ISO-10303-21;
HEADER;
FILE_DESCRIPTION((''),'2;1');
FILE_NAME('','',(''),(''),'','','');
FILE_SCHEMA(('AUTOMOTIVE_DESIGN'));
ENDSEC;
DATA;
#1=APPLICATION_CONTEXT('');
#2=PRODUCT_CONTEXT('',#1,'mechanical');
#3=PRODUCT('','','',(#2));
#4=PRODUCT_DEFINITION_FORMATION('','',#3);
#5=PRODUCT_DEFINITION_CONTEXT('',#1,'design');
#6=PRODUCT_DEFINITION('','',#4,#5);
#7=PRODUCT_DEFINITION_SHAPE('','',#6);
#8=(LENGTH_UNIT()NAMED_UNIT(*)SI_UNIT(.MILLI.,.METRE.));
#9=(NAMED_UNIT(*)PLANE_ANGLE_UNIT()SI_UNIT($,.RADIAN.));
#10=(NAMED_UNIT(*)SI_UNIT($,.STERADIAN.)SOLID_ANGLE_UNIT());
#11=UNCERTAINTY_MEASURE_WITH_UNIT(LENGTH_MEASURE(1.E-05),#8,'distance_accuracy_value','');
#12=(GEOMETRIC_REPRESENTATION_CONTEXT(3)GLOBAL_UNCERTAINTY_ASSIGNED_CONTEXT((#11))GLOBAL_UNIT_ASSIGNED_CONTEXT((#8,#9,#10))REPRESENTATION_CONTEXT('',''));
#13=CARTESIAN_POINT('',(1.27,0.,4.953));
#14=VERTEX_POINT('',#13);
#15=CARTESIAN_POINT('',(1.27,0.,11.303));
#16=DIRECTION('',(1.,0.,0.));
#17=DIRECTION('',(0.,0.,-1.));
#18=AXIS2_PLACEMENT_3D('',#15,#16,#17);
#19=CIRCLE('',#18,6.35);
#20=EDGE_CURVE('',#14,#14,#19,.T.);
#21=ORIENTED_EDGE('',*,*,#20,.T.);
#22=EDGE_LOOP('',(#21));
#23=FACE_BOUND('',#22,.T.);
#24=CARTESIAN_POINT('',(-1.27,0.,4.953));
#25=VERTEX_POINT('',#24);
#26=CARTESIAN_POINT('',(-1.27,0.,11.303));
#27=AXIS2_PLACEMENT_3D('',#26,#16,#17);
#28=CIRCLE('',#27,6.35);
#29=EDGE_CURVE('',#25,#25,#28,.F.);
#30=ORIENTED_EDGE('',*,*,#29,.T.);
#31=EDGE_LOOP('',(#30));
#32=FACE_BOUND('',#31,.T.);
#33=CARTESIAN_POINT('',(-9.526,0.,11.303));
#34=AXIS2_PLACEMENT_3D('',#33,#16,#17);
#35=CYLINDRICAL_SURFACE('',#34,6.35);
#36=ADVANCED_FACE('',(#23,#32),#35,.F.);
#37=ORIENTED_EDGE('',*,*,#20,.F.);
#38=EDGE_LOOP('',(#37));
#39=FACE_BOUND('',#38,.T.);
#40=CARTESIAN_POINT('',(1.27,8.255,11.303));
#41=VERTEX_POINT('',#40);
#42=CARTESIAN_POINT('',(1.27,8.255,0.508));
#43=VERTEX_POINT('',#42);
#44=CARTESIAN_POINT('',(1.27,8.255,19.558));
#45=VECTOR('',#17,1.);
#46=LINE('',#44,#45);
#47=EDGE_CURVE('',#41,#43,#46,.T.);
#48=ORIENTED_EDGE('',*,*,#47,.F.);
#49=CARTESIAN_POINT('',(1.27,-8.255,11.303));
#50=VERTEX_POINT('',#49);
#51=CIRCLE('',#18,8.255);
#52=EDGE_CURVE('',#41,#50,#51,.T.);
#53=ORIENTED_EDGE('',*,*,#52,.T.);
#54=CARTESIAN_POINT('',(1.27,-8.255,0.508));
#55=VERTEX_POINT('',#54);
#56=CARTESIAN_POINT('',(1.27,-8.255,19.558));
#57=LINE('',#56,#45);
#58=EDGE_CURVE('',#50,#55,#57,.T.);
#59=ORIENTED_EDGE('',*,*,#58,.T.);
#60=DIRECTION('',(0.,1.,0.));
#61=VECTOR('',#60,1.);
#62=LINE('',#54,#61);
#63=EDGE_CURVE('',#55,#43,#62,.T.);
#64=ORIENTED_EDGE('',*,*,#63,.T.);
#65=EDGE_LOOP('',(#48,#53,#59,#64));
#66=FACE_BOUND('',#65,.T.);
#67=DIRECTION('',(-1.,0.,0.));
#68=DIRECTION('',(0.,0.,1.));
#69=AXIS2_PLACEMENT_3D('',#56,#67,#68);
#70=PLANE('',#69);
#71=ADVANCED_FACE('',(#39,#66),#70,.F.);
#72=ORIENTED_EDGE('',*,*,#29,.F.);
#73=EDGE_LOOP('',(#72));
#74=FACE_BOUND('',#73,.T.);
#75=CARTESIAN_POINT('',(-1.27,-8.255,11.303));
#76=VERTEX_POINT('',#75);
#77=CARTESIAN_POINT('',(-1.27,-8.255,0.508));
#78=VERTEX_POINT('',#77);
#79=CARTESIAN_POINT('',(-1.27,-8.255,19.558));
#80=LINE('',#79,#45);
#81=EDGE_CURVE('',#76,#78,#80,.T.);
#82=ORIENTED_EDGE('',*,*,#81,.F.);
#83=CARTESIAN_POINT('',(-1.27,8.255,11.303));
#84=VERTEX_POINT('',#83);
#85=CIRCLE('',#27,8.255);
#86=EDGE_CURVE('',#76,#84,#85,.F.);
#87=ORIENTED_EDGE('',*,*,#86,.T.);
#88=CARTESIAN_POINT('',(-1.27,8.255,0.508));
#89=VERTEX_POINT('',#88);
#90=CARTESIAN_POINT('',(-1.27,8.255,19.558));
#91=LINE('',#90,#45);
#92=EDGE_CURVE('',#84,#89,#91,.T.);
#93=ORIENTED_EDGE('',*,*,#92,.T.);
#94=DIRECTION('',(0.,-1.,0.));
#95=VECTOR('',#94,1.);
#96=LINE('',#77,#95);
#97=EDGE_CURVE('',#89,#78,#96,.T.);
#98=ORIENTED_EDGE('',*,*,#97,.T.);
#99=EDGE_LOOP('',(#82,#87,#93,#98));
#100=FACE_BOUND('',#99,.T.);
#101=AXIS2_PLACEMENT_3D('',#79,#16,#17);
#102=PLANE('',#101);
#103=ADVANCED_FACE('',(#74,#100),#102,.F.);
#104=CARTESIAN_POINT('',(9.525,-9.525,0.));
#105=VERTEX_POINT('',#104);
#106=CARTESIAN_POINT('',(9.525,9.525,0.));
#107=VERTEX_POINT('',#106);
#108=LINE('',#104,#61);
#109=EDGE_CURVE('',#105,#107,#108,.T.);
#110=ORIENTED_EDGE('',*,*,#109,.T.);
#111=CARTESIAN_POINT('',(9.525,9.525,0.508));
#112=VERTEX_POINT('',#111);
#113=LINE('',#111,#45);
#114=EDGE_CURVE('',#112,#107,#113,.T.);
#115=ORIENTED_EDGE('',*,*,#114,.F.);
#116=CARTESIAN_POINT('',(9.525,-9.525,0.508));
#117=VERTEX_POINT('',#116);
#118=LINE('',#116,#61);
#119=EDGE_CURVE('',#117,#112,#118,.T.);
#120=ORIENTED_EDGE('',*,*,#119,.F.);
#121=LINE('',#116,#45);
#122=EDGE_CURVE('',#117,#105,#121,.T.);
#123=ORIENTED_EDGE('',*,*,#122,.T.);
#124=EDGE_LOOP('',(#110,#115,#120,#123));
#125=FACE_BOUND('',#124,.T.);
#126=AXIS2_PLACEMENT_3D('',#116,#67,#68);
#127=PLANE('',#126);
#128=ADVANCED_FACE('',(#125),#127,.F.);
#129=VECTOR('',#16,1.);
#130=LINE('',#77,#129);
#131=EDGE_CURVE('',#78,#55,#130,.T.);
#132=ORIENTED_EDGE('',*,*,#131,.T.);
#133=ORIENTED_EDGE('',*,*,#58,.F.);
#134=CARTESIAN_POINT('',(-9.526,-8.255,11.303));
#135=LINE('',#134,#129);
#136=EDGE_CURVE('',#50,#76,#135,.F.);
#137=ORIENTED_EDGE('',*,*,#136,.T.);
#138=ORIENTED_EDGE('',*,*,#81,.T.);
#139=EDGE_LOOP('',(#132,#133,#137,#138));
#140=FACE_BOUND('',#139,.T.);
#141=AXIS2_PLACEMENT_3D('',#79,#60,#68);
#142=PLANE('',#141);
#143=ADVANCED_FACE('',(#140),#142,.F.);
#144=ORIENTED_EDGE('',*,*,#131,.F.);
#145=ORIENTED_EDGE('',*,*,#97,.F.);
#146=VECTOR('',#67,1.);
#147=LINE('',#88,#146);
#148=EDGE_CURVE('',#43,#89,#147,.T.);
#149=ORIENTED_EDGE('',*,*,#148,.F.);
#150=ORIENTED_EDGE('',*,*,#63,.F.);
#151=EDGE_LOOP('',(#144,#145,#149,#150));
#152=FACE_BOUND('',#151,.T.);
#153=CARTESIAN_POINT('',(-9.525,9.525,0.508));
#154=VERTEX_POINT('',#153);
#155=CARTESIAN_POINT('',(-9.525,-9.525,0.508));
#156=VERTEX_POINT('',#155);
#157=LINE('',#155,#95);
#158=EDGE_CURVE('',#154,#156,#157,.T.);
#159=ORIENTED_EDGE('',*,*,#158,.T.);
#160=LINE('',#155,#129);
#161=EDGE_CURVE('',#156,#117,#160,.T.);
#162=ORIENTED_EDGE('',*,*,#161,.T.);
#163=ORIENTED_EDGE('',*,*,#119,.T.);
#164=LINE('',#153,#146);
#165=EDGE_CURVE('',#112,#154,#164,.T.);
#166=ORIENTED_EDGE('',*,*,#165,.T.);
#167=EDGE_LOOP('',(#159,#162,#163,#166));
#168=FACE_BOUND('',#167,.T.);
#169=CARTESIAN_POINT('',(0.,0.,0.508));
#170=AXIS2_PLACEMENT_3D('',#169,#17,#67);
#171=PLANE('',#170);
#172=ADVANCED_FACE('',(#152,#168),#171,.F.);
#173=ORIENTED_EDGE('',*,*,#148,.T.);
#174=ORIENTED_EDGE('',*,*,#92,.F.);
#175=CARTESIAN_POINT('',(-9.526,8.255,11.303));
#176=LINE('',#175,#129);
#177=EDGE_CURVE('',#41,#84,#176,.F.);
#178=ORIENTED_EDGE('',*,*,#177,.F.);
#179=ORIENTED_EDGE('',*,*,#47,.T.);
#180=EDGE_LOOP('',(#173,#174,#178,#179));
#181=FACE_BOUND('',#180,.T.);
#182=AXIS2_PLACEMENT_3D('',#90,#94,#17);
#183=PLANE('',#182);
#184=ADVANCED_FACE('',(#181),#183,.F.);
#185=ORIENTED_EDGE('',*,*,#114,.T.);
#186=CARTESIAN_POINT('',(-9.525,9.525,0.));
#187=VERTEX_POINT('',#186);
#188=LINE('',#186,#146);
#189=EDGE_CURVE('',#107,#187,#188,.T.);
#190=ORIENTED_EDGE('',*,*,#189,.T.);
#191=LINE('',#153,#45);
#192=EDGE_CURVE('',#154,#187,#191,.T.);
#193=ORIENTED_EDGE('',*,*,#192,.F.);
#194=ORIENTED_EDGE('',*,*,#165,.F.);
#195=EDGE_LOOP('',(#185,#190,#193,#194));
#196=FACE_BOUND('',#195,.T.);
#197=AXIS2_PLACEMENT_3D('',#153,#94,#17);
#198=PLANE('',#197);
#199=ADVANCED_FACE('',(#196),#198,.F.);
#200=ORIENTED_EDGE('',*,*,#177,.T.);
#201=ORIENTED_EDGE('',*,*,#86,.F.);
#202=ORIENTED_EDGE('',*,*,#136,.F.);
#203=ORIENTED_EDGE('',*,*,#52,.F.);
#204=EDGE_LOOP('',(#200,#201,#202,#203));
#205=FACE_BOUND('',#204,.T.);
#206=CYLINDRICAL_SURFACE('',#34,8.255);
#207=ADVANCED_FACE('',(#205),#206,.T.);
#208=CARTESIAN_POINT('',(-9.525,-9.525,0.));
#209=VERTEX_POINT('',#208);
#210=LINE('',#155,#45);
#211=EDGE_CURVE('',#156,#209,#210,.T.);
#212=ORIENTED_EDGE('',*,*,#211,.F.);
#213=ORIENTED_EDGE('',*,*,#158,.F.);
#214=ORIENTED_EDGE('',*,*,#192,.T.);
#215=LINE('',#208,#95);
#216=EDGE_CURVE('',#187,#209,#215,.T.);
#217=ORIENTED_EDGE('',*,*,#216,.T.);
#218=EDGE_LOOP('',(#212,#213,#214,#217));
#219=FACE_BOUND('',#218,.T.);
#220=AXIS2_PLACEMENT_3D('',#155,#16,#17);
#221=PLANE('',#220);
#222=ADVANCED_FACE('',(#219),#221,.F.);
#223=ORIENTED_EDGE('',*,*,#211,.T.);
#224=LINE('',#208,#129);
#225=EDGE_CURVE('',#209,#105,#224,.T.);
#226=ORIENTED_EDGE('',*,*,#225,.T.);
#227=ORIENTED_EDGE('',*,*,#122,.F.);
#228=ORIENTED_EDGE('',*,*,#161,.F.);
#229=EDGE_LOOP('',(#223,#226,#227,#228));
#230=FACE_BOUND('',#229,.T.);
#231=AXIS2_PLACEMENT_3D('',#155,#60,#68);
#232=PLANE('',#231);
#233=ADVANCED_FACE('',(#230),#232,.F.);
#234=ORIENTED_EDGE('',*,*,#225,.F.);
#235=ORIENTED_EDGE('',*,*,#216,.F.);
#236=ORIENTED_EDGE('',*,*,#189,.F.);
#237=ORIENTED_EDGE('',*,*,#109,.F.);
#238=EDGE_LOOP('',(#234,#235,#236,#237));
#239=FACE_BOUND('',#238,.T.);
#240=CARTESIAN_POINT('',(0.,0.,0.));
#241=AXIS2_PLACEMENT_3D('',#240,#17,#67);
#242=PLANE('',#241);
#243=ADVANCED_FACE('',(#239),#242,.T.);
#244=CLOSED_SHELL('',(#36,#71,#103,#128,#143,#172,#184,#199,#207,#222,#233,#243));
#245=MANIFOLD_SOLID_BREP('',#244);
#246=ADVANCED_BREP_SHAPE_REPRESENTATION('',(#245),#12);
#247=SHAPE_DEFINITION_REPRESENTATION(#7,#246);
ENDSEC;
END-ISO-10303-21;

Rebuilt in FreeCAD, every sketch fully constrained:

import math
import FreeCAD as App
import Part
import Sketcher

V = App.Vector
Q = App.Units.Quantity


def add_polygon(sketch, points):
    """Adds a closed chain of lines whose ends are joined by coincident constraints."""
    first, n = sketch.GeometryCount, len(points)
    for a, b in zip(points, points[1:] + points[:1]):
        sketch.addGeometry(Part.LineSegment(App.Vector(*a, 0), App.Vector(*b, 0)), False)
    for i in range(n):
        sketch.addConstraint(Sketcher.Constraint("Coincident", first + i, 2, first + (i + 1) % n, 1))

doc = App.newDocument("Part")
body = doc.addObject("PartDesign::Body", "Body")

# Sketch on XY plane
sketch1 = body.newObject("Sketcher::SketchObject", "Sketch")
sketch1.AttachmentSupport = (doc.getObject("XY_Plane"), [""])
sketch1.MapMode = "FlatFace"
add_polygon(sketch1, [(-10, 10), (-10, -10), (10, -10), (10, 10)])  # lines 0-3
sketch1.addConstraint([
    Sketcher.Constraint("Vertical", 0),
    Sketcher.Constraint("Horizontal", 1),
    Sketcher.Constraint("Vertical", 2),
    Sketcher.Constraint("Horizontal", 3),
    Sketcher.Constraint("Symmetric", 0, 2, 2, 2, -1, 1),
    Sketcher.Constraint("Equal", 3, 0),
    Sketcher.Constraint("DistanceX", 1, 1, 1, 2, Q("0.75 in")),
])
pad1 = body.newObject("PartDesign::Pad", "Pad")
pad1.Profile = sketch1
pad1.Length = Q("0.02 in")

# Sketch on XY plane
sketch2 = body.newObject("Sketcher::SketchObject", "Sketch001")
sketch2.AttachmentSupport = (doc.getObject("XY_Plane"), [""])
sketch2.MapMode = "FlatFace"
sketch2.AttachmentOffset = App.Placement(V(0, 0, 0.02 * 25.4), App.Rotation())
add_polygon(sketch2, [(-1.3, 8.3), (-1.3, -8.3), (1.3, -8.3), (1.3, 8.3)])  # lines 0-3
sketch2.addConstraint([
    Sketcher.Constraint("Vertical", 0),
    Sketcher.Constraint("Horizontal", 1),
    Sketcher.Constraint("Vertical", 2),
    Sketcher.Constraint("Horizontal", 3),
    Sketcher.Constraint("Symmetric", 0, 2, 2, 2, -1, 1),
    Sketcher.Constraint("DistanceX", 1, 1, 1, 2, Q("0.1 in")),
    Sketcher.Constraint("DistanceY", 0, 2, 0, 1, Q("0.65 in")),
])
pad2 = body.newObject("PartDesign::Pad", "Pad001")
pad2.Profile = sketch2
pad2.Length = Q("0.75 in")

# Sketch on YZ plane
sketch3 = body.newObject("Sketcher::SketchObject", "Sketch002")
sketch3.AttachmentSupport = (doc.getObject("YZ_Plane"), [""])
sketch3.MapMode = "FlatFace"
sketch3.AttachmentOffset = App.Placement(V(0, 0, 0.05 * 25.4), App.Rotation())
sketch3.addGeometry(Part.Circle(V(0, 11, 0), V(0, 0, 1), 6), False)
sketch3.addConstraint([
    Sketcher.Constraint("PointOnObject", 0, 3, -2),
    Sketcher.Constraint("Diameter", 0, Q("0.5 in")),
    Sketcher.Constraint("DistanceY", -1, 1, 0, 3, Q("0.445 in")),
])
pocket1 = body.newObject("PartDesign::Pocket", "Pocket")
pocket1.Profile = sketch3
pocket1.Type = "UpToFirst"

# Sketch on YZ plane
sketch4 = body.newObject("Sketcher::SketchObject", "Sketch003")
sketch4.AttachmentSupport = (doc.getObject("YZ_Plane"), [""])
sketch4.MapMode = "FlatFace"
sketch4.AttachmentOffset = App.Placement(V(0, 0, -0.05 * 25.4), App.Rotation())
sketch4.addGeometry([
    Part.ArcOfCircle(Part.Circle(V(0, 11.3, 0), V(0, 0, 1), 12.7), math.radians(0), math.radians(180)),
    Part.ArcOfCircle(Part.Circle(V(-10.5, 11.3, 0), V(0, 0, 1), 2.2), math.radians(180), math.radians(360)),
    Part.ArcOfCircle(Part.Circle(V(0, 11.3, 0), V(0, 0, 1), 8.3), math.radians(0), math.radians(180)),
    Part.ArcOfCircle(Part.Circle(V(10.5, 11.3, 0), V(0, 0, 1), 2.2), math.radians(180), math.radians(360)),
], False)
sketch4.addConstraint([
    Sketcher.Constraint("Tangent", 0, 2, 1, 1),
    Sketcher.Constraint("Tangent", 1, 2, 2, 2),
    Sketcher.Constraint("Tangent", 2, 1, 3, 1),
    Sketcher.Constraint("Tangent", 3, 2, 0, 1),
    Sketcher.Constraint("Coincident", 2, 3, 0, 3),
    Sketcher.Constraint("Symmetric", 1, 3, 3, 3, -2),
    Sketcher.Constraint("Horizontal", 0, 3, 1, 3),
    Sketcher.Constraint("Radius", 0, Q("0.5 in")),
    Sketcher.Constraint("Radius", 2, Q("0.325 in")),
    Sketcher.Constraint("DistanceY", -1, 1, 0, 3, Q("0.445 in")),
])
pocket2 = body.newObject("PartDesign::Pocket", "Pocket001")
pocket2.Profile = sketch4
pocket2.Length = Q("0.1 in")
pocket2.Reversed = True

doc.recompute()
